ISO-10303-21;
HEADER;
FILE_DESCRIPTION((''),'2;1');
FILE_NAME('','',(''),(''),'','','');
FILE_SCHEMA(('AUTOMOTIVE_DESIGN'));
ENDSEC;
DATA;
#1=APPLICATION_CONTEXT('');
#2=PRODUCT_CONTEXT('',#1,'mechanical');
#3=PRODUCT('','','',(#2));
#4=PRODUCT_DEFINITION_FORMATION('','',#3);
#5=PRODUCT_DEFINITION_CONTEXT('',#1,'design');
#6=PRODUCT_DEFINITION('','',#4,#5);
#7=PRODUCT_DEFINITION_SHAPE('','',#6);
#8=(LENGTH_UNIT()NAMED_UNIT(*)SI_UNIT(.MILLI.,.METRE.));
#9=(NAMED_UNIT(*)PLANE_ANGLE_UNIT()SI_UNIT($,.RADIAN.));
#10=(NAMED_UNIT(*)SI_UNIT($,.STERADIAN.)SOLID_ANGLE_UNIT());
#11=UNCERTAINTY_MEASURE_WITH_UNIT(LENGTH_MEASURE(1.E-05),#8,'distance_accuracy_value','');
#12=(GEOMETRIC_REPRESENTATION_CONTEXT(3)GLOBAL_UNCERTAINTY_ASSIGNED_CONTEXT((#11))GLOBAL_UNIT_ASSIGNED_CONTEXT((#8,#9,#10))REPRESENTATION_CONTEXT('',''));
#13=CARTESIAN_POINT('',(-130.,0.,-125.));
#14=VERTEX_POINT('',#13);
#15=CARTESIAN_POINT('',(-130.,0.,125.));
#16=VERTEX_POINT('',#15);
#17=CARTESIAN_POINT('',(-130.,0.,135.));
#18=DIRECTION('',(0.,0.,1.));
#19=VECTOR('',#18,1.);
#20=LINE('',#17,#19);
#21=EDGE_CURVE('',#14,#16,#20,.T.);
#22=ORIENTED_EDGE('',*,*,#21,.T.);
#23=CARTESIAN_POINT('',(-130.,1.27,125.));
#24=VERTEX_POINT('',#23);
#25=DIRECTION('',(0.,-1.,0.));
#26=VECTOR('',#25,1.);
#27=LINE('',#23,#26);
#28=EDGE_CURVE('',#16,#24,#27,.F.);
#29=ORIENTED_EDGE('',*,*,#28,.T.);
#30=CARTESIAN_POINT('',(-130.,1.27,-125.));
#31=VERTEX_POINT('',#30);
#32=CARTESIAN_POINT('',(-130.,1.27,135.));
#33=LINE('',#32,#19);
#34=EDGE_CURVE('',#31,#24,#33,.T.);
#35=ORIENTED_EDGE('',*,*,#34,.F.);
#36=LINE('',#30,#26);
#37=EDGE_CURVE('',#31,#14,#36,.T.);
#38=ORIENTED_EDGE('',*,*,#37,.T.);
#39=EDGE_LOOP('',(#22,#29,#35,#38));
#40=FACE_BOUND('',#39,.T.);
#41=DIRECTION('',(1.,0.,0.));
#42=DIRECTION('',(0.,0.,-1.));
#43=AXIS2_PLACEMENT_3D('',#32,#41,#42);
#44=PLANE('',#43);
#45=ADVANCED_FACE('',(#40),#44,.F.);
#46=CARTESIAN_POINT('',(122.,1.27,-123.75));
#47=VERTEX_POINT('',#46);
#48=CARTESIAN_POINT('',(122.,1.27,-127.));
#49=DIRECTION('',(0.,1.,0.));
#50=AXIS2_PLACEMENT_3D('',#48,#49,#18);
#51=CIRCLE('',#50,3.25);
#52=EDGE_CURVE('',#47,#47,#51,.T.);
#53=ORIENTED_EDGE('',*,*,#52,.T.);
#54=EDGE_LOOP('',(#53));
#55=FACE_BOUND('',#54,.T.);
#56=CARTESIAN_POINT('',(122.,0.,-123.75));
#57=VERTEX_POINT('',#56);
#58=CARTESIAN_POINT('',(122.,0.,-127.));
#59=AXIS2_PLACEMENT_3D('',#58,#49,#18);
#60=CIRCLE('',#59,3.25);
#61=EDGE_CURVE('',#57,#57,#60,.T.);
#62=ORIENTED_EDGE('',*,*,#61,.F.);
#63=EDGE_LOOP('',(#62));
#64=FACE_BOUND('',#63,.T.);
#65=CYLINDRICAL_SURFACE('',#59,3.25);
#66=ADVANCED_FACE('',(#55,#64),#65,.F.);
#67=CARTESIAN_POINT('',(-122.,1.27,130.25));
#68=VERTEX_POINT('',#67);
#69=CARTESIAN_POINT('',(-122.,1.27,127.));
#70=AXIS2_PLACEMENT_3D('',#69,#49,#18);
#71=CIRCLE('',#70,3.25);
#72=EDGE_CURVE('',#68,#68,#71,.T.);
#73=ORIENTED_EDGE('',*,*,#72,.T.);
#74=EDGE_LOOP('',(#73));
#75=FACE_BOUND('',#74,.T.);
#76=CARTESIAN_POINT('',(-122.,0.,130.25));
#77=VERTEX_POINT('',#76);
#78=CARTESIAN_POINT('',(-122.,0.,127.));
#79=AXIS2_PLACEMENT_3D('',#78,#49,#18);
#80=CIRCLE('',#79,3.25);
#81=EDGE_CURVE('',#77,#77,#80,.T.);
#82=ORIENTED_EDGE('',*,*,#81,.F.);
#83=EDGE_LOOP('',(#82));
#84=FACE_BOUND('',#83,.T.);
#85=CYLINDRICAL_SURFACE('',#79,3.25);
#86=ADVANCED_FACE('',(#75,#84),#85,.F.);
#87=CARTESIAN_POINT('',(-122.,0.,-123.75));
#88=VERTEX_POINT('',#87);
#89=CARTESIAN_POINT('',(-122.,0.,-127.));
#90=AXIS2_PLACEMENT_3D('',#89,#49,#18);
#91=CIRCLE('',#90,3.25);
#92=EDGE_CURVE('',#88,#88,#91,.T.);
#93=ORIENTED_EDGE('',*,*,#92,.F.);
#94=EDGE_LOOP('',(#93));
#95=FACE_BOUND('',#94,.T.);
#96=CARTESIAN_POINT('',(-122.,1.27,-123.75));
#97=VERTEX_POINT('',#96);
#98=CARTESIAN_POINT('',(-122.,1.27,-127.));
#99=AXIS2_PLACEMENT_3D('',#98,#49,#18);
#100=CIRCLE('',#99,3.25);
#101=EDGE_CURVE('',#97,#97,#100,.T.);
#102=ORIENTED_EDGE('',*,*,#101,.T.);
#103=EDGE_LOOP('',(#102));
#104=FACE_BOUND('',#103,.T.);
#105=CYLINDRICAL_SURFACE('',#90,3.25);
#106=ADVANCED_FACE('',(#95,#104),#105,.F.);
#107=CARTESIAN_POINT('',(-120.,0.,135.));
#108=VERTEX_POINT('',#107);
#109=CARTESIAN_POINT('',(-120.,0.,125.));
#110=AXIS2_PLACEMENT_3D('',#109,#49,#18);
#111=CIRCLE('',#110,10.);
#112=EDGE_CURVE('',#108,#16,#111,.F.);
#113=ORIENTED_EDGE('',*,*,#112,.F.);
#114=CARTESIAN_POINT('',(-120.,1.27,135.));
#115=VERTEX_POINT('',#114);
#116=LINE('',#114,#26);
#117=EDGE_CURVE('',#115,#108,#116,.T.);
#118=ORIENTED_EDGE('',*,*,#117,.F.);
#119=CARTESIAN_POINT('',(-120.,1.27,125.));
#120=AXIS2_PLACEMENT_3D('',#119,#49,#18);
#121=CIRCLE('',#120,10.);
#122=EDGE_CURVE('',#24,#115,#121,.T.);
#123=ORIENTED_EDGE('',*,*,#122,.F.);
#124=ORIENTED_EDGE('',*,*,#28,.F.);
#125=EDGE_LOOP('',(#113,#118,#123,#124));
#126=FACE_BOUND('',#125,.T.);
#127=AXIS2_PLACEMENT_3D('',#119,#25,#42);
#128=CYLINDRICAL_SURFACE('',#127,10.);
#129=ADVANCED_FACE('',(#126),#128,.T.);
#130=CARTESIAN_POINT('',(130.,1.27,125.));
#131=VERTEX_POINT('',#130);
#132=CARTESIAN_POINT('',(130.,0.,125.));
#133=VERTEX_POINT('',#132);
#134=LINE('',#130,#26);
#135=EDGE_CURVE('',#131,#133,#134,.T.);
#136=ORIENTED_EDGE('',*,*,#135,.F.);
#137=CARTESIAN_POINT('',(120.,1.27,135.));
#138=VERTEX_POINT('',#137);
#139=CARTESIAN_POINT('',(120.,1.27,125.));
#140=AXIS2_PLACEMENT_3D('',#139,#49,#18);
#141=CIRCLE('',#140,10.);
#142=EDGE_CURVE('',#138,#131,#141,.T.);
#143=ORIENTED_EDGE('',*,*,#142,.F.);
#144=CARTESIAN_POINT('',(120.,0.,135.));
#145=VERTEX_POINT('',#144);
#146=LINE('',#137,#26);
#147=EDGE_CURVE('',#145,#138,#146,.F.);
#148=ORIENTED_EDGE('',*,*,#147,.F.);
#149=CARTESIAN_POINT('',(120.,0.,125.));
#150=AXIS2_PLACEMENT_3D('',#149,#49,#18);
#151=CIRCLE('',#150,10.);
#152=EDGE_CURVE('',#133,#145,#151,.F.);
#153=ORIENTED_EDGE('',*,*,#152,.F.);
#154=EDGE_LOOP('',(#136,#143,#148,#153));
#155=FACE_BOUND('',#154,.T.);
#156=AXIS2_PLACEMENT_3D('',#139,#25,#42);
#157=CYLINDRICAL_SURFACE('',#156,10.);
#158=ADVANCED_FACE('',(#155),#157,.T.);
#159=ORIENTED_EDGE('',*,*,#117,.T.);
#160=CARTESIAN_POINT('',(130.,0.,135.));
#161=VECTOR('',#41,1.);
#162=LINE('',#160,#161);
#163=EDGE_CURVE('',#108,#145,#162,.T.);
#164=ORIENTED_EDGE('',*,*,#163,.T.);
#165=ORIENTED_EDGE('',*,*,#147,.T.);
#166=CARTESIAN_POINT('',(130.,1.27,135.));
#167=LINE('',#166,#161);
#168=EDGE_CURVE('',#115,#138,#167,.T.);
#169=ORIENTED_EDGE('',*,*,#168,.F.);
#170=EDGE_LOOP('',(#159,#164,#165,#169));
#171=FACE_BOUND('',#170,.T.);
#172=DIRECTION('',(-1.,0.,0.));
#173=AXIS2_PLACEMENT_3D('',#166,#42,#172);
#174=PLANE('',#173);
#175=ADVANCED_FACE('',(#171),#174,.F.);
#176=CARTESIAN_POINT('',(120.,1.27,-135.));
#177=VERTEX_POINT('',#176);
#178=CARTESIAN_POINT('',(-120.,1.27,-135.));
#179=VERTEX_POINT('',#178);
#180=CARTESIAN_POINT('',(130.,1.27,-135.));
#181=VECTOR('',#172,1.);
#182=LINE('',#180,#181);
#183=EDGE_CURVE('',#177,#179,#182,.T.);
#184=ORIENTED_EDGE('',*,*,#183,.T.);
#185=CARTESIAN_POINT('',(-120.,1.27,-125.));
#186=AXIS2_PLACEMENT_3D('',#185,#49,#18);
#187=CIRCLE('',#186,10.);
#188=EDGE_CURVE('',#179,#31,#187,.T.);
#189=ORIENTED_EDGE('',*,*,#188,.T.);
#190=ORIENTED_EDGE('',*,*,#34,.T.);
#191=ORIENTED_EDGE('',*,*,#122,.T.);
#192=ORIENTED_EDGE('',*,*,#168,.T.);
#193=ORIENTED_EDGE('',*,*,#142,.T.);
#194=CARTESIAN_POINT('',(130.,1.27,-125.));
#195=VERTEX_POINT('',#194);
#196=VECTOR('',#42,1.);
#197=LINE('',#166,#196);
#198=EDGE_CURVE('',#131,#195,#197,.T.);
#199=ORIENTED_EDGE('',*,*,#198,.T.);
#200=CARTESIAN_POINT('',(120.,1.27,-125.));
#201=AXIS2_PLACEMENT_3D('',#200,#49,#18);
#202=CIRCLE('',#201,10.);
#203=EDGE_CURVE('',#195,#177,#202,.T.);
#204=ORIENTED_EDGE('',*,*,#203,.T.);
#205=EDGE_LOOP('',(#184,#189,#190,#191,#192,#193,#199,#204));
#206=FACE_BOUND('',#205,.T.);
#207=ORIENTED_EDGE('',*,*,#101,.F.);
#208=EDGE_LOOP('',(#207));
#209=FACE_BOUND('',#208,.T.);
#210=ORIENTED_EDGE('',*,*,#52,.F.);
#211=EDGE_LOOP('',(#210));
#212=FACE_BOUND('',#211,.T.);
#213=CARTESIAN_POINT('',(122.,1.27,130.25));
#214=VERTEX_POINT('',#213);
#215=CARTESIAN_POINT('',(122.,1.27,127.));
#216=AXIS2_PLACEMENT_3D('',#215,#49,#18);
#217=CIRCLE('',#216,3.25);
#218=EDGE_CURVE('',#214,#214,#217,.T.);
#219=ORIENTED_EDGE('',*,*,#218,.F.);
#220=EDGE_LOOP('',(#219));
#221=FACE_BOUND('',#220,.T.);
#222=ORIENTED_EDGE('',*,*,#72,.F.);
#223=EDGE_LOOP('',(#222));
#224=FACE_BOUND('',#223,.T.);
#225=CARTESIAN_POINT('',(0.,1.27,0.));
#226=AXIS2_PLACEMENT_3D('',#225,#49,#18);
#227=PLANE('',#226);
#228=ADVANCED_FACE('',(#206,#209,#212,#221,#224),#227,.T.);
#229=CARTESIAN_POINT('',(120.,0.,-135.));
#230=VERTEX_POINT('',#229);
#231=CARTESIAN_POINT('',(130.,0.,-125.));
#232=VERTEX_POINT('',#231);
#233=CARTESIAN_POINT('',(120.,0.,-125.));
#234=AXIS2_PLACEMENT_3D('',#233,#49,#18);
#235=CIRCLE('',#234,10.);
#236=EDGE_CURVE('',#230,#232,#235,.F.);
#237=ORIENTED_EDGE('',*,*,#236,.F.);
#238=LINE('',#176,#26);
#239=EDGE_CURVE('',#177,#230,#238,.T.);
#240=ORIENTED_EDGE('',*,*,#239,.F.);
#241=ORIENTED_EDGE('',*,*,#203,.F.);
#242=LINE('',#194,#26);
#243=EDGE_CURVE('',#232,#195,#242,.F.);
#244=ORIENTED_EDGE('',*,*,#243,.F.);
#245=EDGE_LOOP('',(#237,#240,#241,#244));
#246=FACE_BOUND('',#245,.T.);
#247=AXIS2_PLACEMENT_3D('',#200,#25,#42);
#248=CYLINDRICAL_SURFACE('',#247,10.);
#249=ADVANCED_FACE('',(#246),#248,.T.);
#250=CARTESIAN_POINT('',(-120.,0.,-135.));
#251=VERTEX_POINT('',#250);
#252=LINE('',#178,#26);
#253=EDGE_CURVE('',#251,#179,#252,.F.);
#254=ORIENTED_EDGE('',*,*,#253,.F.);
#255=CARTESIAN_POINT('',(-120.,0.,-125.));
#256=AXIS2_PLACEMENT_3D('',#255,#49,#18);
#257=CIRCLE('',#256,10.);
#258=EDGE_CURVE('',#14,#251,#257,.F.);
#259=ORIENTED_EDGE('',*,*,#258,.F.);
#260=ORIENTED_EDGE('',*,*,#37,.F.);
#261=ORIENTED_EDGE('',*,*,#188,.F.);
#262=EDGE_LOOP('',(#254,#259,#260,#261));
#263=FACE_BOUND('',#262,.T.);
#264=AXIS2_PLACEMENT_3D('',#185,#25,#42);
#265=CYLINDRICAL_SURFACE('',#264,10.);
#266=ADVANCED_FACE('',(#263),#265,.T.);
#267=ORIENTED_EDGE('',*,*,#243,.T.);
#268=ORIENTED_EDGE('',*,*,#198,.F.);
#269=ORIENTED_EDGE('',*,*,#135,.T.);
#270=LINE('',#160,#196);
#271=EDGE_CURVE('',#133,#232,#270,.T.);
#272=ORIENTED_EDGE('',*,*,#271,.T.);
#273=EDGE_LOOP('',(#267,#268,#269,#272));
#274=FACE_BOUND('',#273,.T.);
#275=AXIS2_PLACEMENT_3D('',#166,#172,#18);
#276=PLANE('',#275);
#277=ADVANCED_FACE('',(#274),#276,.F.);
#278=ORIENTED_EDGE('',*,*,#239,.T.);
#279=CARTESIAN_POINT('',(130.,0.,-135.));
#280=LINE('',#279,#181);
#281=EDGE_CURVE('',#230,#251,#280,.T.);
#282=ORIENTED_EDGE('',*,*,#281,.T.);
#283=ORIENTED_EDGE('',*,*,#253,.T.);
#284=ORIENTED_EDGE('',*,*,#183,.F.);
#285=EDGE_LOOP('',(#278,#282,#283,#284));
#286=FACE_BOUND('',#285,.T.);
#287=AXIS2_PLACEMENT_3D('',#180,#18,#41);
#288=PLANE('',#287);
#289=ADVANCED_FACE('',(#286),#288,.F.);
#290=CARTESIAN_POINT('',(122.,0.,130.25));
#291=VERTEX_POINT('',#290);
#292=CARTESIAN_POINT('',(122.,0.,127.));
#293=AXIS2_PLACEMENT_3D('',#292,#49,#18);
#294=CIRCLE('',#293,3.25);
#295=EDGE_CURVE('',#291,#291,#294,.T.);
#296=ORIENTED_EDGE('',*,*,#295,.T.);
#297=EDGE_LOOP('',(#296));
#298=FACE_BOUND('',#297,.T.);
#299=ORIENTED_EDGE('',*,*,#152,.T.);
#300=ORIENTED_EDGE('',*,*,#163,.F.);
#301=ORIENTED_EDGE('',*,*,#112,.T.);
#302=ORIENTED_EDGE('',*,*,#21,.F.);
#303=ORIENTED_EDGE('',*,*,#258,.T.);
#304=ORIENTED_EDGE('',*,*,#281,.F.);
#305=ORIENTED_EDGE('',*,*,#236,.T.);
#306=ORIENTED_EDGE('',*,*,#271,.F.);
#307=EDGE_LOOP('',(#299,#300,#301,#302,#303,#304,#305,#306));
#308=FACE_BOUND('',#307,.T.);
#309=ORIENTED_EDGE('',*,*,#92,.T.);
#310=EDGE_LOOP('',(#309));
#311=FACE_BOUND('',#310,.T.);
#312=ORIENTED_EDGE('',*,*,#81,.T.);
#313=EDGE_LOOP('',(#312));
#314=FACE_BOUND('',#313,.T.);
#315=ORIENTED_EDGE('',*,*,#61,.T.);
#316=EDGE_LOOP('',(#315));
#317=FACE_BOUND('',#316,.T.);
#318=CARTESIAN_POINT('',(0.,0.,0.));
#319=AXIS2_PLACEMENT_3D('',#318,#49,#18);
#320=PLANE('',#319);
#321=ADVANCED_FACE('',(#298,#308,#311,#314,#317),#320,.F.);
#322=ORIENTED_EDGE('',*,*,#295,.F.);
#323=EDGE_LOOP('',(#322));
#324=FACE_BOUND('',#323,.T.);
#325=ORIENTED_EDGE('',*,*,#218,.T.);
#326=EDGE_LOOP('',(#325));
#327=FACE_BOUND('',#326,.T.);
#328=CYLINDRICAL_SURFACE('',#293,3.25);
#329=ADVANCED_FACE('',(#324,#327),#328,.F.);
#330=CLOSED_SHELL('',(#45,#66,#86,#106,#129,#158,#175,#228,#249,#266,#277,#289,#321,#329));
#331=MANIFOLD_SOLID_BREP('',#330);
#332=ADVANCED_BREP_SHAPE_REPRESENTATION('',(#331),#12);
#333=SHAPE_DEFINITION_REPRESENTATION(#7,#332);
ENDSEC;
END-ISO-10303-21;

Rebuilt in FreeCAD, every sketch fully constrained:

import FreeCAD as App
import Part
import Sketcher

V = App.Vector
Q = App.Units.Quantity


def edges_at(feature, points):
    """Names of the edges that pass closest to the given points."""
    edges = feature.Shape.Edges
    near = lambda p: min(range(len(edges)), key=lambda i: edges[i].distToShape(Part.Vertex(*p))[0])
    return sorted({f"Edge{near(p) + 1}" for p in points})

doc = App.newDocument("Part")
body = doc.addObject("PartDesign::Body", "Body")

sketch1 = body.newObject("Sketcher::SketchObject", "Sketch")
sketch1.AttachmentSupport = (doc.getObject("XZ_Plane"), [""])
sketch1.MapMode = "FlatFace"
sketch1.addGeometry([
    Part.LineSegment(V(-130, -135, 0), V(-130, 135, 0)),
    Part.LineSegment(V(-130, 135, 0), V(130, 135, 0)),
    Part.LineSegment(V(130, 135, 0), V(130, -135, 0)),
    Part.LineSegment(V(130, -135, 0), V(-130, -135, 0)),
], False)
sketch1.addConstraint([
    Sketcher.Constraint("Coincident", 0, 2, 1, 1),
    Sketcher.Constraint("Coincident", 1, 2, 2, 1),
    Sketcher.Constraint("Coincident", 2, 2, 3, 1),
    Sketcher.Constraint("Coincident", 3, 2, 0, 1),
    Sketcher.Constraint("Vertical", 0),
    Sketcher.Constraint("Horizontal", 1),
    Sketcher.Constraint("Vertical", 2),
    Sketcher.Constraint("Horizontal", 3),
    Sketcher.Constraint("Symmetric", 0, 2, 2, 2, -1, 1),
    Sketcher.Constraint("DistanceX", 1, 1, 1, 2, Q("260 mm")),
    Sketcher.Constraint("DistanceY", 0, 1, 0, 2, Q("270 mm")),
])
pad1 = body.newObject("PartDesign::Pad", "Pad")
pad1.Profile = sketch1
pad1.Length = 1.27
pad1.Reversed = True

sketch2 = body.newObject("Sketcher::SketchObject", "Sketch001")
sketch2.AttachmentSupport = (doc.getObject("XZ_Plane"), [""])
sketch2.MapMode = "FlatFace"
sketch2.AttachmentOffset = App.Placement(V(0, 0, -1.27), App.Rotation())
sketch2.addGeometry([
    Part.Circle(V(-122, -127, 0), V(0, 0, 1), 3.25),
    Part.Circle(V(122, -127, 0), V(0, 0, 1), 3.25),
    Part.Circle(V(122, 127, 0), V(0, 0, 1), 3.25),
    Part.Circle(V(-122, 127, 0), V(0, 0, 1), 3.25),
], False)
sketch2.addConstraint([
    Sketcher.Constraint("Equal", 0, 1),
    Sketcher.Constraint("Equal", 1, 2),
    Sketcher.Constraint("Equal", 2, 3),
    Sketcher.Constraint("Symmetric", 0, 3, 2, 3, -1, 1),
    Sketcher.Constraint("Symmetric", 1, 3, 3, 3, -1, 1),
    Sketcher.Constraint("Symmetric", 0, 3, 1, 3, -2),
    Sketcher.Constraint("Diameter", 0, Q("6.5 mm")),
    Sketcher.Constraint("DistanceX", 0, 3, -1, 1, Q("122 mm")),
    Sketcher.Constraint("DistanceY", 0, 3, -1, 1, Q("127 mm")),
])
pocket1 = body.newObject("PartDesign::Pocket", "Pocket")
pocket1.Profile = sketch2
pocket1.Type = "ThroughAll"
pocket1.Reversed = True
doc.recompute()

fillet = body.newObject("PartDesign::Fillet", "Fillet")
fillet.Base = (pocket1, edges_at(pocket1, [
    (-130, 0.635, -135),
    (130, 0.635, -135),
    (130, 0.635, 135),
    (-130, 0.635, 135),
]))
fillet.Radius = 10

doc.recompute()
